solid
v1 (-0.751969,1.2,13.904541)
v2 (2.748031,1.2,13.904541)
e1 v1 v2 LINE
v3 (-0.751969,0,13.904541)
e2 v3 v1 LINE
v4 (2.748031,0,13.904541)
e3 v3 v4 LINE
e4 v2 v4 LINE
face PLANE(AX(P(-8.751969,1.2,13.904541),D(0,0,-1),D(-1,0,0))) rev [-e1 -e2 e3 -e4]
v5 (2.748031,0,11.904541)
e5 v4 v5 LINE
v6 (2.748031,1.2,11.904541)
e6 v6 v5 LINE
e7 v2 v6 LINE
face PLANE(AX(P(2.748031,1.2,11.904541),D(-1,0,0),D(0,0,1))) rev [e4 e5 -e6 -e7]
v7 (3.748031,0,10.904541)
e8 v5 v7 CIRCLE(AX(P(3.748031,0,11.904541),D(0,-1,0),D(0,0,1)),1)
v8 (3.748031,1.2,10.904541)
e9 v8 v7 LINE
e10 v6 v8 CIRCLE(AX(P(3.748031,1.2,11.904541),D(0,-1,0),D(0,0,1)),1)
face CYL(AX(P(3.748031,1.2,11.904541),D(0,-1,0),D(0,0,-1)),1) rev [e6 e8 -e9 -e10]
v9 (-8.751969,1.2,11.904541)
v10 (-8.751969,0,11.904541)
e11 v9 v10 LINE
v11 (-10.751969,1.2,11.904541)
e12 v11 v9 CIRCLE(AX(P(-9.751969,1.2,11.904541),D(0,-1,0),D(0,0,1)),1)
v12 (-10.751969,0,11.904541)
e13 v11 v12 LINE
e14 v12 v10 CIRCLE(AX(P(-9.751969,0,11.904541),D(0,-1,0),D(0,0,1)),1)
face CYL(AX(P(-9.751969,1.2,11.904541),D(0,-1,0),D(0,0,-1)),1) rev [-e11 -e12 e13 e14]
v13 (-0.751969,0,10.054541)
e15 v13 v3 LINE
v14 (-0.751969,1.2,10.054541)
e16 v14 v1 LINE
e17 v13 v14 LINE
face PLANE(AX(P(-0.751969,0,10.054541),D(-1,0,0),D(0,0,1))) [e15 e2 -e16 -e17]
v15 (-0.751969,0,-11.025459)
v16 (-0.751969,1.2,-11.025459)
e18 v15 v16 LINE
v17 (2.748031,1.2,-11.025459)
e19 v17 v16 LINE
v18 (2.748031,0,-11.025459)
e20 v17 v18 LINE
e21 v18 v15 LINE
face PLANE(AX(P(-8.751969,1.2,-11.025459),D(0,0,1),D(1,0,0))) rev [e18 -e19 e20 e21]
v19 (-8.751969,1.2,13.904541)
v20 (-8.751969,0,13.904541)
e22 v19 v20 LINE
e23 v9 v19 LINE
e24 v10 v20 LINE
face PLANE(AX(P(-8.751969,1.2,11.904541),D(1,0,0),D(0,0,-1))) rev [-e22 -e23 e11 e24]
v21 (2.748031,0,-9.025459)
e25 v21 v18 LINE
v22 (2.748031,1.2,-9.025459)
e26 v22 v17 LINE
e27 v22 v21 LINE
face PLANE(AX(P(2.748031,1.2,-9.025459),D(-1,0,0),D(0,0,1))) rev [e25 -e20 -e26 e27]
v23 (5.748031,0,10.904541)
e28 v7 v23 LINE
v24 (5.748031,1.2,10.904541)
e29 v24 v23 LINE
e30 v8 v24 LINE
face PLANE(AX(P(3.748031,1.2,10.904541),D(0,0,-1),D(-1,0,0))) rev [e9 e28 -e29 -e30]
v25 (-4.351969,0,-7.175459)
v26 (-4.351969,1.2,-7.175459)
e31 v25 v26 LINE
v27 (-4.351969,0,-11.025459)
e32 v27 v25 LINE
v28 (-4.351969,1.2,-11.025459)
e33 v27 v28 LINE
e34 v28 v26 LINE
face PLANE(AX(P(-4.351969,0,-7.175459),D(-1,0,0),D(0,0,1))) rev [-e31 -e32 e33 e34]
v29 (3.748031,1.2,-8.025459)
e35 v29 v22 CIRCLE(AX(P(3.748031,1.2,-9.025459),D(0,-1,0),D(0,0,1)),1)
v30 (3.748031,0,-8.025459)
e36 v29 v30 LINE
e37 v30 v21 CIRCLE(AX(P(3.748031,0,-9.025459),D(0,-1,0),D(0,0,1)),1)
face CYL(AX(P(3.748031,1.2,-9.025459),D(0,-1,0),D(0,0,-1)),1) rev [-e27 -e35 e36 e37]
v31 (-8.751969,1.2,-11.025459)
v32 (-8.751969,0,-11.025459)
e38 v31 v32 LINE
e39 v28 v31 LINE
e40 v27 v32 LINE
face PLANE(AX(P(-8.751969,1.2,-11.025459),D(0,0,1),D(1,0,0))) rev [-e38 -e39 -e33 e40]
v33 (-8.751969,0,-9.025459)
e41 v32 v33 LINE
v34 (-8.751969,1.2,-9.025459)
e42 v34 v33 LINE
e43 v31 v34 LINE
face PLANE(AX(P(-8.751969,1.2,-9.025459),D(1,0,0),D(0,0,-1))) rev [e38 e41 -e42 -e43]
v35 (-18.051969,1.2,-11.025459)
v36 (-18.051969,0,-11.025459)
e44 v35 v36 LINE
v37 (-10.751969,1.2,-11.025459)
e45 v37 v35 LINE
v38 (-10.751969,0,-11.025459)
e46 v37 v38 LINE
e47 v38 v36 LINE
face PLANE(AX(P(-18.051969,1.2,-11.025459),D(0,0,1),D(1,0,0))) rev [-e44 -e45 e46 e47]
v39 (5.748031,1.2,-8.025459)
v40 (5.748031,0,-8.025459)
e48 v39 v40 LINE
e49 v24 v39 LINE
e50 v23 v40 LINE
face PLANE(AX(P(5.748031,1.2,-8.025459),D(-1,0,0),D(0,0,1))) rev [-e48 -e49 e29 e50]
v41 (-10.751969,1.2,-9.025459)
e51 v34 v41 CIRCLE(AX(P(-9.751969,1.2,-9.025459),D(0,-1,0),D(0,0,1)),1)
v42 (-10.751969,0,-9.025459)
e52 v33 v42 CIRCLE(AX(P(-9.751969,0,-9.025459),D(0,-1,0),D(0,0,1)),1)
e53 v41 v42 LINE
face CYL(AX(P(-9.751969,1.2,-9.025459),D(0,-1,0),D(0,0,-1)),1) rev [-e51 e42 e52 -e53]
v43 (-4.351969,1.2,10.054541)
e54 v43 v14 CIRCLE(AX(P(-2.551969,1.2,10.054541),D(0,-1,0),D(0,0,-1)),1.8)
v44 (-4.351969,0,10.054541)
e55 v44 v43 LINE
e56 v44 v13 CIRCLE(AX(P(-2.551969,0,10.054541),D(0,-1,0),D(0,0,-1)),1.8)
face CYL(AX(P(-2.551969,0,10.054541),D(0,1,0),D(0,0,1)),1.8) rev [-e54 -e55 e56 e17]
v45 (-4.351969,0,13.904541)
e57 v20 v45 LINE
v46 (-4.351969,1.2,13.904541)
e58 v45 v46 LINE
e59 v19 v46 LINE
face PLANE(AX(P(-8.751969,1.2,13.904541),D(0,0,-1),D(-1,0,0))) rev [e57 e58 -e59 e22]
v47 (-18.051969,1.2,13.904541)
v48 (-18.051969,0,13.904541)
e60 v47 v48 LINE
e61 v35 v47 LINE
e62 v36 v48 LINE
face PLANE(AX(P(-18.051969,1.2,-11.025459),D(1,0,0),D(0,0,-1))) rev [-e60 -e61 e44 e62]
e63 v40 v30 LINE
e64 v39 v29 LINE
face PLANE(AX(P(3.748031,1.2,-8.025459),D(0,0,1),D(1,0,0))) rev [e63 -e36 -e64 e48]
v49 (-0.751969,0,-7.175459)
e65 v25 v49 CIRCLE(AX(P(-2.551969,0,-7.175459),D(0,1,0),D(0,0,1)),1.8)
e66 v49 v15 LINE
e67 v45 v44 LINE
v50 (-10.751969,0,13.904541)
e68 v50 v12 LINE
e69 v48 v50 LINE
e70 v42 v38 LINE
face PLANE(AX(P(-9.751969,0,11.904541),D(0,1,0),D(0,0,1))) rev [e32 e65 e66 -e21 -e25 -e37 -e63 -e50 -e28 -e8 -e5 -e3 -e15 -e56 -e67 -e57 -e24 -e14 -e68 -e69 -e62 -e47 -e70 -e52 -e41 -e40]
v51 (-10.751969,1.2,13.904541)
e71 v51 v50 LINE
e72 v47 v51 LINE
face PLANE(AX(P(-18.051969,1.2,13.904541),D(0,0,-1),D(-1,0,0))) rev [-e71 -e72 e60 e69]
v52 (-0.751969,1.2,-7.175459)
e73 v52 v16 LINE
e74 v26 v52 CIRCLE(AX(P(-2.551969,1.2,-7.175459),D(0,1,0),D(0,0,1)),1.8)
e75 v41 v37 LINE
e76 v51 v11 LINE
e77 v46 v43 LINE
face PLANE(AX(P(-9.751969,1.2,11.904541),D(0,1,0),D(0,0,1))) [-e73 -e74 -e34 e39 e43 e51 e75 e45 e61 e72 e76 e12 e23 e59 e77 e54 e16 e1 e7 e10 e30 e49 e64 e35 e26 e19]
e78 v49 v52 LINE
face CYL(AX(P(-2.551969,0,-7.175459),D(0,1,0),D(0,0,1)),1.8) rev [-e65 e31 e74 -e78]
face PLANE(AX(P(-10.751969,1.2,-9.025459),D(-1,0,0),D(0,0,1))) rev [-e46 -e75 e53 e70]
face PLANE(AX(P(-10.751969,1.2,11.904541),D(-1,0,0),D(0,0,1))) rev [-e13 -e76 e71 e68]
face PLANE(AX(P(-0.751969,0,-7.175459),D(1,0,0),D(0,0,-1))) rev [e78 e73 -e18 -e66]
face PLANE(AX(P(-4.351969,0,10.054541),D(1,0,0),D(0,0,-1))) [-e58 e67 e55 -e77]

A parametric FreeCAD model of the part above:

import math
import FreeCAD as App
import Part
import Sketcher

V = App.Vector

doc = App.newDocument("Part")
body = doc.addObject("PartDesign::Body", "Body")

# Sketch on XZ plane
sketch1 = body.newObject("Sketcher::SketchObject", "Sketch")
sketch1.AttachmentSupport = (doc.getObject("XZ_Plane"), [""])
sketch1.MapMode = "FlatFace"
sketch1.addGeometry([
    Part.LineSegment(V(5.7, -8, 0), V(3.7, -8, 0)),  # 0
    Part.ArcOfCircle(Part.Circle(V(3.7, -9, 0), V(0, 0, 1), 1), math.radians(90), math.radians(180)),  # 1
    Part.LineSegment(V(2.7, -9, 0), V(2.7, -11, 0)),  # 2
    Part.LineSegment(V(2.7, -11, 0), V(-8.8, -11, 0)),  # 3
    Part.LineSegment(V(-8.8, -11, 0), V(-8.8, -9, 0)),  # 4
    Part.ArcOfCircle(Part.Circle(V(-9.8, -9, 0), V(0, 0, 1), 1), math.radians(0), math.radians(180)),  # 5
    Part.LineSegment(V(-10.8, -9, 0), V(-10.8, -11, 0)),  # 6
    Part.LineSegment(V(-10.8, -11, 0), V(-18.1, -11, 0)),  # 7
    Part.LineSegment(V(-18.1, -11, 0), V(-18.1, 13.9, 0)),  # 8
    Part.LineSegment(V(-18.1, 13.9, 0), V(-10.8, 13.9, 0)),  # 9
    Part.LineSegment(V(-10.8, 13.9, 0), V(-10.8, 11.9, 0)),  # 10
    Part.ArcOfCircle(Part.Circle(V(-9.8, 11.9, 0), V(0, 0, 1), 1), math.radians(180), math.radians(360)),  # 11
    Part.LineSegment(V(-8.8, 11.9, 0), V(-8.8, 13.9, 0)),  # 12
    Part.LineSegment(V(-8.8, 13.9, 0), V(2.7, 13.9, 0)),  # 13
    Part.LineSegment(V(2.7, 13.9, 0), V(2.7, 11.9, 0)),  # 14
    Part.ArcOfCircle(Part.Circle(V(3.7, 11.9, 0), V(0, 0, 1), 1), math.radians(-180), math.radians(-90)),  # 15
    Part.LineSegment(V(3.7, 10.9, 0), V(5.7, 10.9, 0)),  # 16
    Part.LineSegment(V(5.7, 10.9, 0), V(5.7, -8, 0)),  # 17
], False)
sketch1.addConstraint([
    Sketcher.Constraint("Tangent", 0, 2, 1, 1),
    Sketcher.Constraint("Tangent", 1, 2, 2, 1),
    Sketcher.Constraint("Coincident", 2, 2, 3, 1),
    Sketcher.Constraint("Coincident", 3, 2, 4, 1),
    Sketcher.Constraint("Tangent", 4, 2, 5, 1),
    Sketcher.Constraint("Tangent", 5, 2, 6, 1),
    Sketcher.Constraint("Coincident", 6, 2, 7, 1),
    Sketcher.Constraint("Coincident", 7, 2, 8, 1),
    Sketcher.Constraint("Coincident", 8, 2, 9, 1),
    Sketcher.Constraint("Coincident", 9, 2, 10, 1),
    Sketcher.Constraint("Tangent", 10, 2, 11, 1),
    Sketcher.Constraint("Tangent", 11, 2, 12, 1),
    Sketcher.Constraint("Coincident", 12, 2, 13, 1),
    Sketcher.Constraint("Coincident", 13, 2, 14, 1),
    Sketcher.Constraint("Tangent", 14, 2, 15, 1),
    Sketcher.Constraint("Tangent", 15, 2, 16, 1),
    Sketcher.Constraint("Coincident", 16, 2, 17, 1),
    Sketcher.Constraint("Coincident", 17, 2, 0, 1),
    Sketcher.Constraint("Horizontal", 0),
    Sketcher.Constraint("Vertical", 2),
    Sketcher.Constraint("Horizontal", 3),
    Sketcher.Constraint("Vertical", 4),
    Sketcher.Constraint("Vertical", 6),
    Sketcher.Constraint("Horizontal", 7),
    Sketcher.Constraint("Vertical", 8),
    Sketcher.Constraint("Horizontal", 9),
    Sketcher.Constraint("Vertical", 10),
    Sketcher.Constraint("Vertical", 12),
    Sketcher.Constraint("Horizontal", 13),
    Sketcher.Constraint("Vertical", 14),
    Sketcher.Constraint("Horizontal", 16),
    Sketcher.Constraint("Vertical", 17),
    Sketcher.Constraint("Equal", 1, 5),
    Sketcher.Constraint("Equal", 5, 11),
    Sketcher.Constraint("Equal", 11, 15),
    Sketcher.Constraint("Horizontal", 1, 3, 5, 3),
    Sketcher.Constraint("Horizontal", 11, 3, 15, 3),
    Sketcher.Constraint("Horizontal", 3, 2, 6, 2),
    Sketcher.Constraint("Horizontal", 9, 2, 12, 2),
    Sketcher.Constraint("Vertical", 5, 3, 11, 3),
    Sketcher.Constraint("Vertical", 1, 3, 15, 3),
    Sketcher.Constraint("Equal", 16, 2),
    Sketcher.Constraint("Equal", 6, 10),
    Sketcher.Constraint("Radius", 1, 1.0),
    Sketcher.Constraint("DistanceX", 0, 2, 0, 1, 2.0),
    Sketcher.Constraint("DistanceX", 3, 2, 3, 1, 11.5),
    Sketcher.Constraint("DistanceX", 7, 2, 7, 1, 7.3),
    Sketcher.Constraint("DistanceY", 8, 1, 8, 2, 24.93),
    Sketcher.Constraint("DistanceX", -1, 1, 1, 3, 3.748031),
    Sketcher.Constraint("DistanceY", 1, 3, -1, 1, 9.025459),
])
pad1 = body.newObject("PartDesign::Pad", "Pad")
pad1.Profile = sketch1
pad1.Length = 1.2
pad1.Reversed = True

# Sketch on XZ plane
sketch2 = body.newObject("Sketcher::SketchObject", "Sketch001")
sketch2.AttachmentSupport = (doc.getObject("XZ_Plane"), [""])
sketch2.MapMode = "FlatFace"
sketch2.AttachmentOffset = App.Placement(V(0, 0, -1.2), App.Rotation())
sketch2.addGeometry([
    Part.LineSegment(V(-4.4, -11, 0), V(-4.4, -7.2, 0)),
    Part.ArcOfCircle(Part.Circle(V(-2.6, -7.2, 0), V(0, 0, 1), 1.8), math.radians(0), math.radians(180)),
    Part.LineSegment(V(-0.8, -7.2, 0), V(-0.8, -11, 0)),
    Part.LineSegment(V(-0.8, -11, 0), V(-4.4, -11, 0)),
], False)
sketch2.addConstraint([
    Sketcher.Constraint("Tangent", 0, 2, 1, 2),
    Sketcher.Constraint("Tangent", 1, 1, 2, 1),
    Sketcher.Constraint("Coincident", 2, 2, 3, 1),
    Sketcher.Constraint("Coincident", 3, 2, 0, 1),
    Sketcher.Constraint("Vertical", 0),
    Sketcher.Constraint("Vertical", 2),
    Sketcher.Constraint("Horizontal", 3),
    Sketcher.Constraint("Radius", 1, 1.8),
    Sketcher.Constraint("DistanceY", 0, 1, 0, 2, 3.85),
    Sketcher.Constraint("DistanceX", 1, 3, -1, 1, 2.551969),
    Sketcher.Constraint("DistanceY", 1, 3, -1, 1, 7.175459),
])
pocket1 = body.newObject("PartDesign::Pocket", "Pocket")
pocket1.Profile = sketch2
pocket1.Type = "ThroughAll"
pocket1.Reversed = True
doc.recompute()

datumplane = body.newObject("PartDesign::Plane", "DatumPlane")
datumplane.AttachmentSupport = (doc.getObject("XY_Plane"), [""])
datumplane.MapMode = "FlatFace"
datumplane.AttachmentOffset = App.Placement(V(0, 0, 1.439541), App.Rotation())
mirrored = body.newObject("PartDesign::Mirrored", "Mirrored")
mirrored.Originals = [pocket1]
mirrored.MirrorPlane = (datumplane, [""])
body.Tip = mirrored

doc.recompute()
